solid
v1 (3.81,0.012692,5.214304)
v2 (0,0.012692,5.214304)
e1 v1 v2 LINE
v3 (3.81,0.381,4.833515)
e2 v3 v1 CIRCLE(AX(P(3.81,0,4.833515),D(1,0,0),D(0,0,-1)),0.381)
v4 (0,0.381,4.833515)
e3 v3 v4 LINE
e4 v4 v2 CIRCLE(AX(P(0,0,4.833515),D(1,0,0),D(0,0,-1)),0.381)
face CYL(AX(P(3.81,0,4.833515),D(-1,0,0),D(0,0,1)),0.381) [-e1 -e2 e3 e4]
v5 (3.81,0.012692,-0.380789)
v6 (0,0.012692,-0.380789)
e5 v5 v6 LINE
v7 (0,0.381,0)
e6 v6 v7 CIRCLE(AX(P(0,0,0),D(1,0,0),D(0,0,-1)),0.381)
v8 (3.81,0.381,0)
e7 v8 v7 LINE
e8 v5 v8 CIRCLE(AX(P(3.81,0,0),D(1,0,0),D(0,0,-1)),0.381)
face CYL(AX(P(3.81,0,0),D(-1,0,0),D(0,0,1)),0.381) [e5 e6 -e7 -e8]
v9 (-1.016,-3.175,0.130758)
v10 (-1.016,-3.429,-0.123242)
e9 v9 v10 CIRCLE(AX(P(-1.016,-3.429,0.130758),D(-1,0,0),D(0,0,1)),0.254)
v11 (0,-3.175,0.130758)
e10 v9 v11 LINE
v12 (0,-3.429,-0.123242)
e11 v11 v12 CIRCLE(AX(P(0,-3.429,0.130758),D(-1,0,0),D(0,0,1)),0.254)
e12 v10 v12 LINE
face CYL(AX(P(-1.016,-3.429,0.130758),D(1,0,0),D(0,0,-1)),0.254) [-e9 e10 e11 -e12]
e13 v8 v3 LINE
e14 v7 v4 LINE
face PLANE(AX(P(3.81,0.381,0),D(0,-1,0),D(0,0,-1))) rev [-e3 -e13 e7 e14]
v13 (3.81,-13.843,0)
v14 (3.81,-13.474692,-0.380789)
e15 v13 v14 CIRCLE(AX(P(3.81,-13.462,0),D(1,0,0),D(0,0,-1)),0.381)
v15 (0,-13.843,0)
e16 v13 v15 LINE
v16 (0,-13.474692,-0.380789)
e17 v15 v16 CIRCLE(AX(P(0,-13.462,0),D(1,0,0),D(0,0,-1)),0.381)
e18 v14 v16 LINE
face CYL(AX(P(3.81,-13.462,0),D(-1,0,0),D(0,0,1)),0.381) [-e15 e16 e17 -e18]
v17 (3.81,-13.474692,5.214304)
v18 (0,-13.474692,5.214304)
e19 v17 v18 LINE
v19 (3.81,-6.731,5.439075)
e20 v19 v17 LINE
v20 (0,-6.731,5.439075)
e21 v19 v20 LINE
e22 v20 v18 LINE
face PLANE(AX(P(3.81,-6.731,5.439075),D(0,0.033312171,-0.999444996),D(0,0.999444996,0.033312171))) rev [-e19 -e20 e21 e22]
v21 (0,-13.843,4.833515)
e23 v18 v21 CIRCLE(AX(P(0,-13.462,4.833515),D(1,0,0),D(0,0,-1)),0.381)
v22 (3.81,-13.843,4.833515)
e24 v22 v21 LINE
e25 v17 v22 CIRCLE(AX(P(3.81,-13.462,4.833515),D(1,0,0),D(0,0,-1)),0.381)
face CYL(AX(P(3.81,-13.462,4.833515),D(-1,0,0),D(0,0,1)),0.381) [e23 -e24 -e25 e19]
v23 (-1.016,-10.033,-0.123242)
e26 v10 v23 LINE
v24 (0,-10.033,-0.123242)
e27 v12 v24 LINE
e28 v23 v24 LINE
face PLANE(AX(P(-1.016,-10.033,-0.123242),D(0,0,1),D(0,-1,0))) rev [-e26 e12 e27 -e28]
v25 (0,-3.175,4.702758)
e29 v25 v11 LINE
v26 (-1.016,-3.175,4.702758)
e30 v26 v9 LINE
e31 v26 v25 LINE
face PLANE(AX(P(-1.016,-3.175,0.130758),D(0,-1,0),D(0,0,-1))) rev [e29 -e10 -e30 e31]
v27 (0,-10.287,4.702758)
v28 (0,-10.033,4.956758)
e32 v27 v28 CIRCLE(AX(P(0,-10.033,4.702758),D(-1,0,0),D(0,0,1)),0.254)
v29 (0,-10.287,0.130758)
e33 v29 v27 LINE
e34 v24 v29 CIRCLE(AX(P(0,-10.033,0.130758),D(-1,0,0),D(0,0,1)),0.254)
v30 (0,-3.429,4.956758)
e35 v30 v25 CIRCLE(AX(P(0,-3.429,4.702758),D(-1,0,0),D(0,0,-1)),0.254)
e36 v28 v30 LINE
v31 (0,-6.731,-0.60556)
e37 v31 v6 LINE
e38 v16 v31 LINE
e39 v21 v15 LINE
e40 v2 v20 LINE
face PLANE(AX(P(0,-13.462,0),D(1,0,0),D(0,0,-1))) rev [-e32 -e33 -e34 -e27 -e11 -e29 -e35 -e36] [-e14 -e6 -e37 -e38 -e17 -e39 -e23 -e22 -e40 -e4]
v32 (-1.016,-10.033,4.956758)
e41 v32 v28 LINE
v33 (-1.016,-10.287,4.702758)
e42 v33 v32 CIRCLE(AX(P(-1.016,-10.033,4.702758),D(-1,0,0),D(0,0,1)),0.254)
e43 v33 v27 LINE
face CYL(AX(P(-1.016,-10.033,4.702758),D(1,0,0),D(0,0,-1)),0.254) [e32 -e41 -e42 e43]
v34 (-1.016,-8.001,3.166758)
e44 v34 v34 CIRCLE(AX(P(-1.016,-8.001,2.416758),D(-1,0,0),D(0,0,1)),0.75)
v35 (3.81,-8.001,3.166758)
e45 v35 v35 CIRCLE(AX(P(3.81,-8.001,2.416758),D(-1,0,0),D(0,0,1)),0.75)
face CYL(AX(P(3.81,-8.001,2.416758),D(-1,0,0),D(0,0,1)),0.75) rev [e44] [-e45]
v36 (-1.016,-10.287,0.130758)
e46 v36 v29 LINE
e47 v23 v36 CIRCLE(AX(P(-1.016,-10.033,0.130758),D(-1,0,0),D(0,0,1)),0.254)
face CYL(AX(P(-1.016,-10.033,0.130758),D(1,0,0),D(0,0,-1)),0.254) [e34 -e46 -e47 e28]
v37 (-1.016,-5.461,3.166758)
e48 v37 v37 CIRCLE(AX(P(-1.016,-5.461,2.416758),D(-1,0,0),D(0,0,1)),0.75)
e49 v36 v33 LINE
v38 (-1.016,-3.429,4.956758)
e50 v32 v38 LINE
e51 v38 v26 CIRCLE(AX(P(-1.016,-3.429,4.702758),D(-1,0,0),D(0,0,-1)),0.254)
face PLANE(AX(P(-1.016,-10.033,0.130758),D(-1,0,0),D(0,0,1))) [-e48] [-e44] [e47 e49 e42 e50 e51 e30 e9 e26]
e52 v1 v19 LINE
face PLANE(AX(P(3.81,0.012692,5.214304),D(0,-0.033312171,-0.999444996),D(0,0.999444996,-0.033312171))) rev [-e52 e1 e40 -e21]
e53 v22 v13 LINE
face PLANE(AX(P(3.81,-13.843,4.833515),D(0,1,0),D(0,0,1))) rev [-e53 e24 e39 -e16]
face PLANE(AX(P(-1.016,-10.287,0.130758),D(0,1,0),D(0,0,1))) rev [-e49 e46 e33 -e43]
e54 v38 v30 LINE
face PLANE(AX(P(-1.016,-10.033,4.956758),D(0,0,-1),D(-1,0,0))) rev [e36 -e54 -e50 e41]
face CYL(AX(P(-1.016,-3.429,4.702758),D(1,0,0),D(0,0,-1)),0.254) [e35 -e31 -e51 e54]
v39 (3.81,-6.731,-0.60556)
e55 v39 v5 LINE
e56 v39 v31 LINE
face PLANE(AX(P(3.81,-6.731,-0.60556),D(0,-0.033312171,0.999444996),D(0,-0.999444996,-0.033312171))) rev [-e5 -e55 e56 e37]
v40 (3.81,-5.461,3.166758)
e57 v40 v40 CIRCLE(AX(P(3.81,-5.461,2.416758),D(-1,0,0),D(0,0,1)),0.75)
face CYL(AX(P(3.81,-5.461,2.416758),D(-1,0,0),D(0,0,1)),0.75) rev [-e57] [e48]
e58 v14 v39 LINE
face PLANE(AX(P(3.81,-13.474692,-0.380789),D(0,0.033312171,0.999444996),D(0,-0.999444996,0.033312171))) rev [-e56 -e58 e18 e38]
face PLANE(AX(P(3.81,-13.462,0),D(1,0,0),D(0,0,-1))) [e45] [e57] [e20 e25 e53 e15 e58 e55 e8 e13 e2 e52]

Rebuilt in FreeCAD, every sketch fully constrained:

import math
import FreeCAD as App
import Part
import Sketcher
from FreeCAD import Vector
Q = App.Units.Quantity

doc = App.newDocument("Part")
body = doc.addObject("PartDesign::Body", "Body")

# Sketch on YZ plane
sketch1 = body.newObject("Sketcher::SketchObject", "Sketch")
sketch1.AttachmentSupport = (doc.getObject("YZ_Plane"), [""])
sketch1.MapMode = "FlatFace"
sketch1.addGeometry(Part.LineSegment(Vector(-13.47, -0.38, 0), Vector(-6.73, -0.61, 0)), False)
sketch1.addGeometry(Part.LineSegment(Vector(-6.73, -0.61, 0), Vector(0.01, -0.38, 0)), False)
sketch1.addGeometry(Part.ArcOfCircle(Part.Circle(Vector(0, 0, 0), Vector(0, 0, 1), 0.38), math.radians(-88), math.radians(0)), False)
sketch1.addGeometry(Part.LineSegment(Vector(0.38, 0, 0), Vector(0.38, 4.83, 0)), False)
sketch1.addGeometry(Part.ArcOfCircle(Part.Circle(Vector(0, 4.83, 0), Vector(0, 0, 1), 0.38), math.radians(0), math.radians(88)), False)
sketch1.addGeometry(Part.LineSegment(Vector(0.01, 5.21, 0), Vector(-6.73, 5.44, 0)), False)
sketch1.addGeometry(Part.LineSegment(Vector(-6.73, 5.44, 0), Vector(-13.47, 5.21, 0)), False)
sketch1.addGeometry(Part.ArcOfCircle(Part.Circle(Vector(-13.46, 4.83, 0), Vector(0, 0, 1), 0.38), math.radians(92), math.radians(180)), False)
sketch1.addGeometry(Part.LineSegment(Vector(-13.84, 4.83, 0), Vector(-13.84, 0, 0)), False)
sketch1.addGeometry(Part.ArcOfCircle(Part.Circle(Vector(-13.46, 0, 0), Vector(0, 0, 1), 0.38), math.radians(180), math.radians(268)), False)
sketch1.addConstraint(Sketcher.Constraint("Coincident", 0, 2, 1, 1))
sketch1.addConstraint(Sketcher.Constraint("Tangent", 1, 2, 2, 1))
sketch1.addConstraint(Sketcher.Constraint("Tangent", 2, 2, 3, 1))
sketch1.addConstraint(Sketcher.Constraint("Tangent", 3, 2, 4, 1))
sketch1.addConstraint(Sketcher.Constraint("Tangent", 4, 2, 5, 1))
sketch1.addConstraint(Sketcher.Constraint("Coincident", 5, 2, 6, 1))
sketch1.addConstraint(Sketcher.Constraint("Tangent", 6, 2, 7, 1))
sketch1.addConstraint(Sketcher.Constraint("Tangent", 7, 2, 8, 1))
sketch1.addConstraint(Sketcher.Constraint("Tangent", 8, 2, 9, 1))
sketch1.addConstraint(Sketcher.Constraint("Tangent", 9, 2, 0, 1))
sketch1.addConstraint(Sketcher.Constraint("Vertical", 3))
sketch1.addConstraint(Sketcher.Constraint("Vertical", 8))
sketch1.addConstraint(Sketcher.Constraint("Coincident", 2, 3, -1, 1))
sketch1.addConstraint(Sketcher.Constraint("Equal", 2, 4))
sketch1.addConstraint(Sketcher.Constraint("Equal", 4, 7))
sketch1.addConstraint(Sketcher.Constraint("Equal", 7, 9))
sketch1.addConstraint(Sketcher.Constraint("PointOnObject", 9, 3, -1))
sketch1.addConstraint(Sketcher.Constraint("Parallel", 0, 5))
sketch1.addConstraint(Sketcher.Constraint("Parallel", 1, 6))
sketch1.addConstraint(Sketcher.Constraint("Horizontal", 4, 3, 7, 3))
sketch1.addConstraint(Sketcher.Constraint("Vertical", 0, 2, 5, 2))
sketch1.addConstraint(Sketcher.Constraint("Radius", 2, Q("0.015 in")))
sketch1.addConstraint(Sketcher.Constraint("DistanceX", 7, 3, -1, 1, Q("0.53 in")))
sketch1.addConstraint(Sketcher.Constraint("DistanceY", 3, 1, 3, 2, Q("4.833515 mm")))
sketch1.addConstraint(Sketcher.Constraint("DistanceY", 0, 2, -1, 1, Q("0.60556 mm")))
pad1 = body.newObject("PartDesign::Pad", "Pad")
pad1.Profile = sketch1
pad1.Length = Q("0.15 in")

# Sketch on YZ plane
sketch2 = body.newObject("Sketcher::SketchObject", "Sketch001")
sketch2.AttachmentSupport = (doc.getObject("YZ_Plane"), [""])
sketch2.MapMode = "FlatFace"
sketch2.addGeometry(Part.LineSegment(Vector(-10.29, 0.13, 0), Vector(-10.29, 4.7, 0)), False)
sketch2.addGeometry(Part.ArcOfCircle(Part.Circle(Vector(-10.03, 4.7, 0), Vector(0, 0, 1), 0.25), math.radians(90), math.radians(180)), False)
sketch2.addGeometry(Part.LineSegment(Vector(-10.03, 4.96, 0), Vector(-3.43, 4.96, 0)), False)
sketch2.addGeometry(Part.ArcOfCircle(Part.Circle(Vector(-3.43, 4.7, 0), Vector(0, 0, 1), 0.25), math.radians(0), math.radians(90)), False)
sketch2.addGeometry(Part.LineSegment(Vector(-3.17, 4.7, 0), Vector(-3.17, 0.13, 0)), False)
sketch2.addGeometry(Part.ArcOfCircle(Part.Circle(Vector(-3.43, 0.13, 0), Vector(0, 0, 1), 0.25), math.radians(-90), math.radians(0)), False)
sketch2.addGeometry(Part.LineSegment(Vector(-3.43, -0.12, 0), Vector(-10.03, -0.12, 0)), False)
sketch2.addGeometry(Part.ArcOfCircle(Part.Circle(Vector(-10.03, 0.13, 0), Vector(0, 0, 1), 0.25), math.radians(180), math.radians(270)), False)
sketch2.addConstraint(Sketcher.Constraint("Tangent", 0, 2, 1, 2))
sketch2.addConstraint(Sketcher.Constraint("Tangent", 1, 1, 2, 1))
sketch2.addConstraint(Sketcher.Constraint("Tangent", 2, 2, 3, 2))
sketch2.addConstraint(Sketcher.Constraint("Tangent", 3, 1, 4, 1))
sketch2.addConstraint(Sketcher.Constraint("Tangent", 4, 2, 5, 2))
sketch2.addConstraint(Sketcher.Constraint("Tangent", 5, 1, 6, 1))
sketch2.addConstraint(Sketcher.Constraint("Tangent", 6, 2, 7, 2))
sketch2.addConstraint(Sketcher.Constraint("Tangent", 7, 1, 0, 1))
sketch2.addConstraint(Sketcher.Constraint("Vertical", 0))
sketch2.addConstraint(Sketcher.Constraint("Horizontal", 2))
sketch2.addConstraint(Sketcher.Constraint("Vertical", 4))
sketch2.addConstraint(Sketcher.Constraint("Horizontal", 6))
sketch2.addConstraint(Sketcher.Constraint("Equal", 1, 3))
sketch2.addConstraint(Sketcher.Constraint("Equal", 3, 5))
sketch2.addConstraint(Sketcher.Constraint("Equal", 5, 7))
sketch2.addConstraint(Sketcher.Constraint("Radius", 1, Q("0.01 in")))
sketch2.addConstraint(Sketcher.Constraint("DistanceX", 2, 1, 2, 2, Q("0.26 in")))
sketch2.addConstraint(Sketcher.Constraint("DistanceY", 0, 1, 0, 2, Q("0.18 in")))
sketch2.addConstraint(Sketcher.Constraint("DistanceX", 1, 3, -1, 1, Q("0.395 in")))
sketch2.addConstraint(Sketcher.Constraint("DistanceY", -1, 1, 1, 3, Q("4.702758 mm")))
pad2 = body.newObject("PartDesign::Pad", "Pad001")
pad2.Profile = sketch2
pad2.Length = Q("0.04 in")
pad2.Reversed = True

# Sketch on YZ plane
sketch3 = body.newObject("Sketcher::SketchObject", "Sketch002")
sketch3.AttachmentSupport = (doc.getObject("YZ_Plane"), [""])
sketch3.MapMode = "FlatFace"
sketch3.AttachmentOffset = App.Placement(Vector(0, 0, -0.04 * 25.4), App.Rotation())
sketch3.addGeometry(Part.Circle(Vector(-5.5, 2.4, 0), Vector(0, 0, 1), 0.8), False)
sketch3.addGeometry(Part.Circle(Vector(-8, 2.4, 0), Vector(0, 0, 1), 0.8), False)
sketch3.addConstraint(Sketcher.Constraint("Equal", 0, 1))
sketch3.addConstraint(Sketcher.Constraint("Horizontal", 0, 3, 1, 3))
sketch3.addConstraint(Sketcher.Constraint("DistanceX", 1, 3, 0, 3, Q("0.1 in")))
sketch3.addConstraint(Sketcher.Constraint("Diameter", 0, Q("1.5 mm")))
sketch3.addConstraint(Sketcher.Constraint("DistanceX", 0, 3, -1, 1, Q("0.215 in")))
sketch3.addConstraint(Sketcher.Constraint("DistanceY", -1, 1, 0, 3, Q("2.416758 mm")))
pocket1 = body.newObject("PartDesign::Pocket", "Pocket")
pocket1.Profile = sketch3
pocket1.Type = "ThroughAll"
pocket1.Midplane = True

doc.recompute()
